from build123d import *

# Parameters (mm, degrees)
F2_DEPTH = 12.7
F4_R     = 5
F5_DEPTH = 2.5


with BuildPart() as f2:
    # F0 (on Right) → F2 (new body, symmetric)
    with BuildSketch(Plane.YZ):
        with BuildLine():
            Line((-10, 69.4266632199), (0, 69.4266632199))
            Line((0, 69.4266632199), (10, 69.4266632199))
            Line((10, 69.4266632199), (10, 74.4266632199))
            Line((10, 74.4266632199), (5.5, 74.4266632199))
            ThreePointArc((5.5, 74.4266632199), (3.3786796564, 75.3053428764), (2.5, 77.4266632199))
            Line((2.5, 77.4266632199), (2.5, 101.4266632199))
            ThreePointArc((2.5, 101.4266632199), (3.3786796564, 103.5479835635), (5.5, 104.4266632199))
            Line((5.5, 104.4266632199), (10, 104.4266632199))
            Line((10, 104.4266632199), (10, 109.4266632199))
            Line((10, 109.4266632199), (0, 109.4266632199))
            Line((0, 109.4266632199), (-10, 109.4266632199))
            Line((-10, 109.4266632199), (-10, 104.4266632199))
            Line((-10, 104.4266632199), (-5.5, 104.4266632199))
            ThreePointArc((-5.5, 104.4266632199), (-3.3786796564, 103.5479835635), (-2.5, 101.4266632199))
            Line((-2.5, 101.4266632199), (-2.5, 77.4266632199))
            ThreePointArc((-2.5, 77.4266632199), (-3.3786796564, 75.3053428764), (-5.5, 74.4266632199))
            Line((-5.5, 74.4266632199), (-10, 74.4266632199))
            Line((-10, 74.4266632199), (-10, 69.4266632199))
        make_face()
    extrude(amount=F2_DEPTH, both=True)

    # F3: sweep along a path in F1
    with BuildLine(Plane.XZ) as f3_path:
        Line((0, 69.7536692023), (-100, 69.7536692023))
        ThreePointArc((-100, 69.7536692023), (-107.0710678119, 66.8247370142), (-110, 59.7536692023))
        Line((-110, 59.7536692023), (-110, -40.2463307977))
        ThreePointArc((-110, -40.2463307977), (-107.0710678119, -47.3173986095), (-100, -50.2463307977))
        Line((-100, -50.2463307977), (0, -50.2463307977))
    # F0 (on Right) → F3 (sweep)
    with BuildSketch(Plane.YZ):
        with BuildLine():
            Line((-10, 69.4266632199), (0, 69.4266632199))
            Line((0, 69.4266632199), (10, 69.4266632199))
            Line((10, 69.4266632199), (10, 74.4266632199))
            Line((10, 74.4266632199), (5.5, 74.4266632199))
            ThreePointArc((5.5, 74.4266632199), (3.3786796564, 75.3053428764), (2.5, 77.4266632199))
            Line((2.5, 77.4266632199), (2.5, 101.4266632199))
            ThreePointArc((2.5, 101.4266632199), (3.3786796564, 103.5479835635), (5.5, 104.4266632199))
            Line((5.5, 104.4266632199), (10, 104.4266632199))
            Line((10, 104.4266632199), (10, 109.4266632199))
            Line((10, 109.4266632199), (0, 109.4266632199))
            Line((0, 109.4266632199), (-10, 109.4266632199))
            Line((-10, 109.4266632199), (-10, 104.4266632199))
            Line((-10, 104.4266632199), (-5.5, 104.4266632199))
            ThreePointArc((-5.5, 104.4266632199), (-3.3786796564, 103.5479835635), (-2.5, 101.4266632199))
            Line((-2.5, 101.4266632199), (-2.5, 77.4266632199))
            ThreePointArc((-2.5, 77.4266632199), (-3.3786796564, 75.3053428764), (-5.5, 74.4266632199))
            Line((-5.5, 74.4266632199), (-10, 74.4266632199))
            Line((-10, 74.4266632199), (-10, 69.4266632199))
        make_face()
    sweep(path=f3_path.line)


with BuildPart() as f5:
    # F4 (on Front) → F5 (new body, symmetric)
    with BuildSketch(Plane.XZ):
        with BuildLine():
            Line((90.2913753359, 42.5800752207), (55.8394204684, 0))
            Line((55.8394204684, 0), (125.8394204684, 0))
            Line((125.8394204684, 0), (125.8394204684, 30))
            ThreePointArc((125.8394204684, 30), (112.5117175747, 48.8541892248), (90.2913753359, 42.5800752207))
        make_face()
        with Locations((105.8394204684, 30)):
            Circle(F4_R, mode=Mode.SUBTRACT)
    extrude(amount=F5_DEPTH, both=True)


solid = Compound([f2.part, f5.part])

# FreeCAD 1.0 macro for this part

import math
import FreeCAD as App
import Part
import Sketcher

V = App.Vector
Q = App.Units.Quantity

doc = App.newDocument("Part")
body = doc.addObject("PartDesign::Body", "Body")

# Sketch on YZ plane
sketch1 = body.newObject("Sketcher::SketchObject", "Sketch")
sketch1.AttachmentSupport = (doc.getObject("YZ_Plane"), [""])
sketch1.MapMode = "FlatFace"
sketch1.addGeometry(Part.LineSegment(V(-10, 69.4, 0), V(10, 69.4, 0)), False)
sketch1.addGeometry(Part.LineSegment(V(10, 69.4, 0), V(10, 74.4, 0)), False)
sketch1.addGeometry(Part.LineSegment(V(10, 74.4, 0), V(5.5, 74.4, 0)), False)
sketch1.addGeometry(Part.ArcOfCircle(Part.Circle(V(5.5, 77.4, 0), V(0, 0, 1), 3), math.radians(180), math.radians(270)), False)
sketch1.addGeometry(Part.LineSegment(V(2.5, 77.4, 0), V(2.5, 101.4, 0)), False)
sketch1.addGeometry(Part.ArcOfCircle(Part.Circle(V(5.5, 101.4, 0), V(0, 0, 1), 3), math.radians(90), math.radians(180)), False)
sketch1.addGeometry(Part.LineSegment(V(5.5, 104.4, 0), V(10, 104.4, 0)), False)
sketch1.addGeometry(Part.LineSegment(V(10, 104.4, 0), V(10, 109.4, 0)), False)
sketch1.addGeometry(Part.LineSegment(V(10, 109.4, 0), V(-10, 109.4, 0)), False)
sketch1.addGeometry(Part.LineSegment(V(-10, 109.4, 0), V(-10, 104.4, 0)), False)
sketch1.addGeometry(Part.LineSegment(V(-10, 104.4, 0), V(-5.5, 104.4, 0)), False)
sketch1.addGeometry(Part.ArcOfCircle(Part.Circle(V(-5.5, 101.4, 0), V(0, 0, 1), 3), math.radians(0), math.radians(90)), False)
sketch1.addGeometry(Part.LineSegment(V(-2.5, 101.4, 0), V(-2.5, 77.4, 0)), False)
sketch1.addGeometry(Part.ArcOfCircle(Part.Circle(V(-5.5, 77.4, 0), V(0, 0, 1), 3), math.radians(-90), math.radians(0)), False)
sketch1.addGeometry(Part.LineSegment(V(-5.5, 74.4, 0), V(-10, 74.4, 0)), False)
sketch1.addGeometry(Part.LineSegment(V(-10, 74.4, 0), V(-10, 69.4, 0)), False)
sketch1.addConstraint(Sketcher.Constraint("Coincident", 0, 2, 1, 1))
sketch1.addConstraint(Sketcher.Constraint("Coincident", 1, 2, 2, 1))
sketch1.addConstraint(Sketcher.Constraint("Tangent", 2, 2, 3, 2))
sketch1.addConstraint(Sketcher.Constraint("Tangent", 3, 1, 4, 1))
sketch1.addConstraint(Sketcher.Constraint("Tangent", 4, 2, 5, 2))
sketch1.addConstraint(Sketcher.Constraint("Tangent", 5, 1, 6, 1))
sketch1.addConstraint(Sketcher.Constraint("Coincident", 6, 2, 7, 1))
sketch1.addConstraint(Sketcher.Constraint("Coincident", 7, 2, 8, 1))
sketch1.addConstraint(Sketcher.Constraint("Coincident", 8, 2, 9, 1))
sketch1.addConstraint(Sketcher.Constraint("Coincident", 9, 2, 10, 1))
sketch1.addConstraint(Sketcher.Constraint("Tangent", 10, 2, 11, 2))
sketch1.addConstraint(Sketcher.Constraint("Tangent", 11, 1, 12, 1))
sketch1.addConstraint(Sketcher.Constraint("Tangent", 12, 2, 13, 2))
sketch1.addConstraint(Sketcher.Constraint("Tangent", 13, 1, 14, 1))
sketch1.addConstraint(Sketcher.Constraint("Coincident", 14, 2, 15, 1))
sketch1.addConstraint(Sketcher.Constraint("Coincident", 15, 2, 0, 1))
sketch1.addConstraint(Sketcher.Constraint("Horizontal", 0))
sketch1.addConstraint(Sketcher.Constraint("Vertical", 1))
sketch1.addConstraint(Sketcher.Constraint("Horizontal", 2))
sketch1.addConstraint(Sketcher.Constraint("Vertical", 4))
sketch1.addConstraint(Sketcher.Constraint("Horizontal", 6))
sketch1.addConstraint(Sketcher.Constraint("Vertical", 7))
sketch1.addConstraint(Sketcher.Constraint("Horizontal", 8))
sketch1.addConstraint(Sketcher.Constraint("Vertical", 9))
sketch1.addConstraint(Sketcher.Constraint("Horizontal", 10))
sketch1.addConstraint(Sketcher.Constraint("Vertical", 12))
sketch1.addConstraint(Sketcher.Constraint("Horizontal", 14))
sketch1.addConstraint(Sketcher.Constraint("Vertical", 15))
sketch1.addConstraint(Sketcher.Constraint("Equal", 3, 5))
sketch1.addConstraint(Sketcher.Constraint("Equal", 5, 11))
sketch1.addConstraint(Sketcher.Constraint("Equal", 11, 13))
sketch1.addConstraint(Sketcher.Constraint("Symmetric", 5, 3, 11, 3, -2))
sketch1.addConstraint(Sketcher.Constraint("Symmetric", 1, 2, 14, 2, -2))
sketch1.addConstraint(Sketcher.Constraint("Vertical", 1, 2, 6, 2))
sketch1.addConstraint(Sketcher.Constraint("Vertical", 9, 2, 14, 2))
sketch1.addConstraint(Sketcher.Constraint("Equal", 1, 7))
sketch1.addConstraint(Sketcher.Constraint("Radius", 3, Q("3 mm")))
sketch1.addConstraint(Sketcher.Constraint("DistanceX", 0, 1, 0, 2, Q("20 mm")))
sketch1.addConstraint(Sketcher.Constraint("DistanceY", 1, 1, 1, 2, Q("5 mm")))
sketch1.addConstraint(Sketcher.Constraint("DistanceY", 4, 1, 4, 2, Q("24 mm")))
sketch1.addConstraint(Sketcher.Constraint("DistanceX", 2, 2, 2, 1, Q("4.5 mm")))
sketch1.addConstraint(Sketcher.Constraint("DistanceY", -1, 1, 3, 3, Q("77.426663 mm")))
pad1 = body.newObject("PartDesign::Pad", "Pad")
pad1.Profile = sketch1
pad1.Length = 25.4
pad1.Midplane = True

# Sketch on YZ plane
sketch2 = body.newObject("Sketcher::SketchObject", "Sketch001")
sketch2.AttachmentSupport = (doc.getObject("YZ_Plane"), [""])
sketch2.MapMode = "FlatFace"
sketch2.addGeometry(Part.LineSegment(V(-10, 69.4, 0), V(10, 69.4, 0)), False)
sketch2.addGeometry(Part.LineSegment(V(10, 69.4, 0), V(10, 74.4, 0)), False)
sketch2.addGeometry(Part.LineSegment(V(10, 74.4, 0), V(5.5, 74.4, 0)), False)
sketch2.addGeometry(Part.ArcOfCircle(Part.Circle(V(5.5, 77.4, 0), V(0, 0, 1), 3), math.radians(180), math.radians(270)), False)
sketch2.addGeometry(Part.LineSegment(V(2.5, 77.4, 0), V(2.5, 101.4, 0)), False)
sketch2.addGeometry(Part.ArcOfCircle(Part.Circle(V(5.5, 101.4, 0), V(0, 0, 1), 3), math.radians(90), math.radians(180)), False)
sketch2.addGeometry(Part.LineSegment(V(5.5, 104.4, 0), V(10, 104.4, 0)), False)
sketch2.addGeometry(Part.LineSegment(V(10, 104.4, 0), V(10, 109.4, 0)), False)
sketch2.addGeometry(Part.LineSegment(V(10, 109.4, 0), V(-10, 109.4, 0)), False)
sketch2.addGeometry(Part.LineSegment(V(-10, 109.4, 0), V(-10, 104.4, 0)), False)
sketch2.addGeometry(Part.LineSegment(V(-10, 104.4, 0), V(-5.5, 104.4, 0)), False)
sketch2.addGeometry(Part.ArcOfCircle(Part.Circle(V(-5.5, 101.4, 0), V(0, 0, 1), 3), math.radians(0), math.radians(90)), False)
sketch2.addGeometry(Part.LineSegment(V(-2.5, 101.4, 0), V(-2.5, 77.4, 0)), False)
sketch2.addGeometry(Part.ArcOfCircle(Part.Circle(V(-5.5, 77.4, 0), V(0, 0, 1), 3), math.radians(-90), math.radians(0)), False)
sketch2.addGeometry(Part.LineSegment(V(-5.5, 74.4, 0), V(-10, 74.4, 0)), False)
sketch2.addGeometry(Part.LineSegment(V(-10, 74.4, 0), V(-10, 69.4, 0)), False)
sketch2.addConstraint(Sketcher.Constraint("Coincident", 0, 2, 1, 1))
sketch2.addConstraint(Sketcher.Constraint("Coincident", 1, 2, 2, 1))
sketch2.addConstraint(Sketcher.Constraint("Tangent", 2, 2, 3, 2))
sketch2.addConstraint(Sketcher.Constraint("Tangent", 3, 1, 4, 1))
sketch2.addConstraint(Sketcher.Constraint("Tangent", 4, 2, 5, 2))
sketch2.addConstraint(Sketcher.Constraint("Tangent", 5, 1, 6, 1))
sketch2.addConstraint(Sketcher.Constraint("Coincident", 6, 2, 7, 1))
sketch2.addConstraint(Sketcher.Constraint("Coincident", 7, 2, 8, 1))
sketch2.addConstraint(Sketcher.Constraint("Coincident", 8, 2, 9, 1))
sketch2.addConstraint(Sketcher.Constraint("Coincident", 9, 2, 10, 1))
sketch2.addConstraint(Sketcher.Constraint("Tangent", 10, 2, 11, 2))
sketch2.addConstraint(Sketcher.Constraint("Tangent", 11, 1, 12, 1))
sketch2.addConstraint(Sketcher.Constraint("Tangent", 12, 2, 13, 2))
sketch2.addConstraint(Sketcher.Constraint("Tangent", 13, 1, 14, 1))
sketch2.addConstraint(Sketcher.Constraint("Coincident", 14, 2, 15, 1))
sketch2.addConstraint(Sketcher.Constraint("Coincident", 15, 2, 0, 1))
sketch2.addConstraint(Sketcher.Constraint("Horizontal", 0))
sketch2.addConstraint(Sketcher.Constraint("Vertical", 1))
sketch2.addConstraint(Sketcher.Constraint("Horizontal", 2))
sketch2.addConstraint(Sketcher.Constraint("Vertical", 4))
sketch2.addConstraint(Sketcher.Constraint("Horizontal", 6))
sketch2.addConstraint(Sketcher.Constraint("Vertical", 7))
sketch2.addConstraint(Sketcher.Constraint("Horizontal", 8))
sketch2.addConstraint(Sketcher.Constraint("Vertical", 9))
sketch2.addConstraint(Sketcher.Constraint("Horizontal", 10))
sketch2.addConstraint(Sketcher.Constraint("Vertical", 12))
sketch2.addConstraint(Sketcher.Constraint("Horizontal", 14))
sketch2.addConstraint(Sketcher.Constraint("Vertical", 15))
sketch2.addConstraint(Sketcher.Constraint("Equal", 3, 5))
sketch2.addConstraint(Sketcher.Constraint("Equal", 5, 11))
sketch2.addConstraint(Sketcher.Constraint("Equal", 11, 13))
sketch2.addConstraint(Sketcher.Constraint("Symmetric", 5, 3, 11, 3, -2))
sketch2.addConstraint(Sketcher.Constraint("Symmetric", 1, 2, 14, 2, -2))
sketch2.addConstraint(Sketcher.Constraint("Vertical", 1, 2, 6, 2))
sketch2.addConstraint(Sketcher.Constraint("Vertical", 9, 2, 14, 2))
sketch2.addConstraint(Sketcher.Constraint("Equal", 1, 7))
sketch2.addConstraint(Sketcher.Constraint("Radius", 3, Q("3 mm")))
sketch2.addConstraint(Sketcher.Constraint("DistanceX", 0, 1, 0, 2, Q("20 mm")))
sketch2.addConstraint(Sketcher.Constraint("DistanceY", 1, 1, 1, 2, Q("5 mm")))
sketch2.addConstraint(Sketcher.Constraint("DistanceY", 4, 1, 4, 2, Q("24 mm")))
sketch2.addConstraint(Sketcher.Constraint("DistanceX", 2, 2, 2, 1, Q("4.5 mm")))
sketch2.addConstraint(Sketcher.Constraint("DistanceY", -1, 1, 3, 3, Q("77.426663 mm")))

# Sketch on XZ plane
sketch3 = body.newObject("Sketcher::SketchObject", "Sketch002")
sketch3.AttachmentSupport = (doc.getObject("XZ_Plane"), [""])
sketch3.MapMode = "FlatFace"
sketch3.addGeometry(Part.LineSegment(V(0, 70, 0), V(-100, 70, 0)), False)
sketch3.addGeometry(Part.ArcOfCircle(Part.Circle(V(-100, 60, 0), V(0, 0, 1), 10), math.radians(90), math.radians(180)), False)
sketch3.addGeometry(Part.LineSegment(V(-110, 60, 0), V(-110, -40, 0)), False)
sketch3.addGeometry(Part.ArcOfCircle(Part.Circle(V(-100, -40, 0), V(0, 0, 1), 10), math.radians(180), math.radians(270)), False)
sketch3.addGeometry(Part.LineSegment(V(-100, -50, 0), V(0, -50, 0)), False)
sketch3.addConstraint(Sketcher.Constraint("Tangent", 0, 2, 1, 1))
sketch3.addConstraint(Sketcher.Constraint("Tangent", 1, 2, 2, 1))
sketch3.addConstraint(Sketcher.Constraint("Tangent", 2, 2, 3, 1))
sketch3.addConstraint(Sketcher.Constraint("Tangent", 3, 2, 4, 1))
sketch3.addConstraint(Sketcher.Constraint("Horizontal", 0))
sketch3.addConstraint(Sketcher.Constraint("Vertical", 2))
sketch3.addConstraint(Sketcher.Constraint("Horizontal", 4))
sketch3.addConstraint(Sketcher.Constraint("Equal", 1, 3))
sketch3.addConstraint(Sketcher.Constraint("PointOnObject", 0, 1, -2))
sketch3.addConstraint(Sketcher.Constraint("PointOnObject", 4, 2, -2))
sketch3.addConstraint(Sketcher.Constraint("Equal", 4, 2))
sketch3.addConstraint(Sketcher.Constraint("Radius", 1, Q("10 mm")))
sketch3.addConstraint(Sketcher.Constraint("DistanceX", 0, 2, 0, 1, Q("100 mm")))
sketch3.addConstraint(Sketcher.Constraint("DistanceY", -1, 1, 1, 3, Q("59.753669 mm")))
doc.recompute()

additivepipe = body.newObject("PartDesign::AdditivePipe", "AdditivePipe")
additivepipe.Profile = sketch2
additivepipe.Spine = (sketch3, ["Edge1", "Edge2", "Edge3", "Edge4", "Edge5"])
body2 = doc.addObject("PartDesign::Body", "Body001")

# Sketch on XZ plane
sketch4 = body2.newObject("Sketcher::SketchObject", "Sketch003")
sketch4.AttachmentSupport = (doc.getObject("XZ_Plane001"), [""])
sketch4.MapMode = "FlatFace"
sketch4.addGeometry(Part.LineSegment(V(90, 43, 0), V(56, 0, 0)), False)
sketch4.addGeometry(Part.LineSegment(V(56, 0, 0), V(126, 0, 0)), False)
sketch4.addGeometry(Part.LineSegment(V(126, 0, 0), V(126, 30, 0)), False)
sketch4.addGeometry(Part.ArcOfCircle(Part.Circle(V(106, 30, 0), V(0, 0, 1), 20), math.radians(0), math.radians(141)), False)
sketch4.addGeometry(Part.Circle(V(106, 30, 0), V(0, 0, 1), 5), False)
sketch4.addConstraint(Sketcher.Constraint("Coincident", 0, 2, 1, 1))
sketch4.addConstraint(Sketcher.Constraint("Coincident", 1, 2, 2, 1))
sketch4.addConstraint(Sketcher.Constraint("Tangent", 2, 2, 3, 1))
sketch4.addConstraint(Sketcher.Constraint("Tangent", 3, 2, 0, 1))
sketch4.addConstraint(Sketcher.Constraint("Horizontal", 1))
sketch4.addConstraint(Sketcher.Constraint("Vertical", 2))
sketch4.addConstraint(Sketcher.Constraint("Coincident", 4, 3, 3, 3))
sketch4.addConstraint(Sketcher.Constraint("PointOnObject", 0, 2, -1))
sketch4.addConstraint(Sketcher.Constraint("Diameter", 4, Q("10 mm")))
sketch4.addConstraint(Sketcher.Constraint("Radius", 3, Q("20 mm")))
sketch4.addConstraint(Sketcher.Constraint("DistanceX", 1, 1, 1, 2, Q("70 mm")))
sketch4.addConstraint(Sketcher.Constraint("DistanceY", 2, 1, 2, 2, Q("30 mm")))
sketch4.addConstraint(Sketcher.Constraint("DistanceX", -1, 1, 3, 3, Q("105.83942 mm")))
pad2 = body2.newObject("PartDesign::Pad", "Pad001")
pad2.Profile = sketch4
pad2.Length = 5
pad2.Midplane = True

doc.recompute()
